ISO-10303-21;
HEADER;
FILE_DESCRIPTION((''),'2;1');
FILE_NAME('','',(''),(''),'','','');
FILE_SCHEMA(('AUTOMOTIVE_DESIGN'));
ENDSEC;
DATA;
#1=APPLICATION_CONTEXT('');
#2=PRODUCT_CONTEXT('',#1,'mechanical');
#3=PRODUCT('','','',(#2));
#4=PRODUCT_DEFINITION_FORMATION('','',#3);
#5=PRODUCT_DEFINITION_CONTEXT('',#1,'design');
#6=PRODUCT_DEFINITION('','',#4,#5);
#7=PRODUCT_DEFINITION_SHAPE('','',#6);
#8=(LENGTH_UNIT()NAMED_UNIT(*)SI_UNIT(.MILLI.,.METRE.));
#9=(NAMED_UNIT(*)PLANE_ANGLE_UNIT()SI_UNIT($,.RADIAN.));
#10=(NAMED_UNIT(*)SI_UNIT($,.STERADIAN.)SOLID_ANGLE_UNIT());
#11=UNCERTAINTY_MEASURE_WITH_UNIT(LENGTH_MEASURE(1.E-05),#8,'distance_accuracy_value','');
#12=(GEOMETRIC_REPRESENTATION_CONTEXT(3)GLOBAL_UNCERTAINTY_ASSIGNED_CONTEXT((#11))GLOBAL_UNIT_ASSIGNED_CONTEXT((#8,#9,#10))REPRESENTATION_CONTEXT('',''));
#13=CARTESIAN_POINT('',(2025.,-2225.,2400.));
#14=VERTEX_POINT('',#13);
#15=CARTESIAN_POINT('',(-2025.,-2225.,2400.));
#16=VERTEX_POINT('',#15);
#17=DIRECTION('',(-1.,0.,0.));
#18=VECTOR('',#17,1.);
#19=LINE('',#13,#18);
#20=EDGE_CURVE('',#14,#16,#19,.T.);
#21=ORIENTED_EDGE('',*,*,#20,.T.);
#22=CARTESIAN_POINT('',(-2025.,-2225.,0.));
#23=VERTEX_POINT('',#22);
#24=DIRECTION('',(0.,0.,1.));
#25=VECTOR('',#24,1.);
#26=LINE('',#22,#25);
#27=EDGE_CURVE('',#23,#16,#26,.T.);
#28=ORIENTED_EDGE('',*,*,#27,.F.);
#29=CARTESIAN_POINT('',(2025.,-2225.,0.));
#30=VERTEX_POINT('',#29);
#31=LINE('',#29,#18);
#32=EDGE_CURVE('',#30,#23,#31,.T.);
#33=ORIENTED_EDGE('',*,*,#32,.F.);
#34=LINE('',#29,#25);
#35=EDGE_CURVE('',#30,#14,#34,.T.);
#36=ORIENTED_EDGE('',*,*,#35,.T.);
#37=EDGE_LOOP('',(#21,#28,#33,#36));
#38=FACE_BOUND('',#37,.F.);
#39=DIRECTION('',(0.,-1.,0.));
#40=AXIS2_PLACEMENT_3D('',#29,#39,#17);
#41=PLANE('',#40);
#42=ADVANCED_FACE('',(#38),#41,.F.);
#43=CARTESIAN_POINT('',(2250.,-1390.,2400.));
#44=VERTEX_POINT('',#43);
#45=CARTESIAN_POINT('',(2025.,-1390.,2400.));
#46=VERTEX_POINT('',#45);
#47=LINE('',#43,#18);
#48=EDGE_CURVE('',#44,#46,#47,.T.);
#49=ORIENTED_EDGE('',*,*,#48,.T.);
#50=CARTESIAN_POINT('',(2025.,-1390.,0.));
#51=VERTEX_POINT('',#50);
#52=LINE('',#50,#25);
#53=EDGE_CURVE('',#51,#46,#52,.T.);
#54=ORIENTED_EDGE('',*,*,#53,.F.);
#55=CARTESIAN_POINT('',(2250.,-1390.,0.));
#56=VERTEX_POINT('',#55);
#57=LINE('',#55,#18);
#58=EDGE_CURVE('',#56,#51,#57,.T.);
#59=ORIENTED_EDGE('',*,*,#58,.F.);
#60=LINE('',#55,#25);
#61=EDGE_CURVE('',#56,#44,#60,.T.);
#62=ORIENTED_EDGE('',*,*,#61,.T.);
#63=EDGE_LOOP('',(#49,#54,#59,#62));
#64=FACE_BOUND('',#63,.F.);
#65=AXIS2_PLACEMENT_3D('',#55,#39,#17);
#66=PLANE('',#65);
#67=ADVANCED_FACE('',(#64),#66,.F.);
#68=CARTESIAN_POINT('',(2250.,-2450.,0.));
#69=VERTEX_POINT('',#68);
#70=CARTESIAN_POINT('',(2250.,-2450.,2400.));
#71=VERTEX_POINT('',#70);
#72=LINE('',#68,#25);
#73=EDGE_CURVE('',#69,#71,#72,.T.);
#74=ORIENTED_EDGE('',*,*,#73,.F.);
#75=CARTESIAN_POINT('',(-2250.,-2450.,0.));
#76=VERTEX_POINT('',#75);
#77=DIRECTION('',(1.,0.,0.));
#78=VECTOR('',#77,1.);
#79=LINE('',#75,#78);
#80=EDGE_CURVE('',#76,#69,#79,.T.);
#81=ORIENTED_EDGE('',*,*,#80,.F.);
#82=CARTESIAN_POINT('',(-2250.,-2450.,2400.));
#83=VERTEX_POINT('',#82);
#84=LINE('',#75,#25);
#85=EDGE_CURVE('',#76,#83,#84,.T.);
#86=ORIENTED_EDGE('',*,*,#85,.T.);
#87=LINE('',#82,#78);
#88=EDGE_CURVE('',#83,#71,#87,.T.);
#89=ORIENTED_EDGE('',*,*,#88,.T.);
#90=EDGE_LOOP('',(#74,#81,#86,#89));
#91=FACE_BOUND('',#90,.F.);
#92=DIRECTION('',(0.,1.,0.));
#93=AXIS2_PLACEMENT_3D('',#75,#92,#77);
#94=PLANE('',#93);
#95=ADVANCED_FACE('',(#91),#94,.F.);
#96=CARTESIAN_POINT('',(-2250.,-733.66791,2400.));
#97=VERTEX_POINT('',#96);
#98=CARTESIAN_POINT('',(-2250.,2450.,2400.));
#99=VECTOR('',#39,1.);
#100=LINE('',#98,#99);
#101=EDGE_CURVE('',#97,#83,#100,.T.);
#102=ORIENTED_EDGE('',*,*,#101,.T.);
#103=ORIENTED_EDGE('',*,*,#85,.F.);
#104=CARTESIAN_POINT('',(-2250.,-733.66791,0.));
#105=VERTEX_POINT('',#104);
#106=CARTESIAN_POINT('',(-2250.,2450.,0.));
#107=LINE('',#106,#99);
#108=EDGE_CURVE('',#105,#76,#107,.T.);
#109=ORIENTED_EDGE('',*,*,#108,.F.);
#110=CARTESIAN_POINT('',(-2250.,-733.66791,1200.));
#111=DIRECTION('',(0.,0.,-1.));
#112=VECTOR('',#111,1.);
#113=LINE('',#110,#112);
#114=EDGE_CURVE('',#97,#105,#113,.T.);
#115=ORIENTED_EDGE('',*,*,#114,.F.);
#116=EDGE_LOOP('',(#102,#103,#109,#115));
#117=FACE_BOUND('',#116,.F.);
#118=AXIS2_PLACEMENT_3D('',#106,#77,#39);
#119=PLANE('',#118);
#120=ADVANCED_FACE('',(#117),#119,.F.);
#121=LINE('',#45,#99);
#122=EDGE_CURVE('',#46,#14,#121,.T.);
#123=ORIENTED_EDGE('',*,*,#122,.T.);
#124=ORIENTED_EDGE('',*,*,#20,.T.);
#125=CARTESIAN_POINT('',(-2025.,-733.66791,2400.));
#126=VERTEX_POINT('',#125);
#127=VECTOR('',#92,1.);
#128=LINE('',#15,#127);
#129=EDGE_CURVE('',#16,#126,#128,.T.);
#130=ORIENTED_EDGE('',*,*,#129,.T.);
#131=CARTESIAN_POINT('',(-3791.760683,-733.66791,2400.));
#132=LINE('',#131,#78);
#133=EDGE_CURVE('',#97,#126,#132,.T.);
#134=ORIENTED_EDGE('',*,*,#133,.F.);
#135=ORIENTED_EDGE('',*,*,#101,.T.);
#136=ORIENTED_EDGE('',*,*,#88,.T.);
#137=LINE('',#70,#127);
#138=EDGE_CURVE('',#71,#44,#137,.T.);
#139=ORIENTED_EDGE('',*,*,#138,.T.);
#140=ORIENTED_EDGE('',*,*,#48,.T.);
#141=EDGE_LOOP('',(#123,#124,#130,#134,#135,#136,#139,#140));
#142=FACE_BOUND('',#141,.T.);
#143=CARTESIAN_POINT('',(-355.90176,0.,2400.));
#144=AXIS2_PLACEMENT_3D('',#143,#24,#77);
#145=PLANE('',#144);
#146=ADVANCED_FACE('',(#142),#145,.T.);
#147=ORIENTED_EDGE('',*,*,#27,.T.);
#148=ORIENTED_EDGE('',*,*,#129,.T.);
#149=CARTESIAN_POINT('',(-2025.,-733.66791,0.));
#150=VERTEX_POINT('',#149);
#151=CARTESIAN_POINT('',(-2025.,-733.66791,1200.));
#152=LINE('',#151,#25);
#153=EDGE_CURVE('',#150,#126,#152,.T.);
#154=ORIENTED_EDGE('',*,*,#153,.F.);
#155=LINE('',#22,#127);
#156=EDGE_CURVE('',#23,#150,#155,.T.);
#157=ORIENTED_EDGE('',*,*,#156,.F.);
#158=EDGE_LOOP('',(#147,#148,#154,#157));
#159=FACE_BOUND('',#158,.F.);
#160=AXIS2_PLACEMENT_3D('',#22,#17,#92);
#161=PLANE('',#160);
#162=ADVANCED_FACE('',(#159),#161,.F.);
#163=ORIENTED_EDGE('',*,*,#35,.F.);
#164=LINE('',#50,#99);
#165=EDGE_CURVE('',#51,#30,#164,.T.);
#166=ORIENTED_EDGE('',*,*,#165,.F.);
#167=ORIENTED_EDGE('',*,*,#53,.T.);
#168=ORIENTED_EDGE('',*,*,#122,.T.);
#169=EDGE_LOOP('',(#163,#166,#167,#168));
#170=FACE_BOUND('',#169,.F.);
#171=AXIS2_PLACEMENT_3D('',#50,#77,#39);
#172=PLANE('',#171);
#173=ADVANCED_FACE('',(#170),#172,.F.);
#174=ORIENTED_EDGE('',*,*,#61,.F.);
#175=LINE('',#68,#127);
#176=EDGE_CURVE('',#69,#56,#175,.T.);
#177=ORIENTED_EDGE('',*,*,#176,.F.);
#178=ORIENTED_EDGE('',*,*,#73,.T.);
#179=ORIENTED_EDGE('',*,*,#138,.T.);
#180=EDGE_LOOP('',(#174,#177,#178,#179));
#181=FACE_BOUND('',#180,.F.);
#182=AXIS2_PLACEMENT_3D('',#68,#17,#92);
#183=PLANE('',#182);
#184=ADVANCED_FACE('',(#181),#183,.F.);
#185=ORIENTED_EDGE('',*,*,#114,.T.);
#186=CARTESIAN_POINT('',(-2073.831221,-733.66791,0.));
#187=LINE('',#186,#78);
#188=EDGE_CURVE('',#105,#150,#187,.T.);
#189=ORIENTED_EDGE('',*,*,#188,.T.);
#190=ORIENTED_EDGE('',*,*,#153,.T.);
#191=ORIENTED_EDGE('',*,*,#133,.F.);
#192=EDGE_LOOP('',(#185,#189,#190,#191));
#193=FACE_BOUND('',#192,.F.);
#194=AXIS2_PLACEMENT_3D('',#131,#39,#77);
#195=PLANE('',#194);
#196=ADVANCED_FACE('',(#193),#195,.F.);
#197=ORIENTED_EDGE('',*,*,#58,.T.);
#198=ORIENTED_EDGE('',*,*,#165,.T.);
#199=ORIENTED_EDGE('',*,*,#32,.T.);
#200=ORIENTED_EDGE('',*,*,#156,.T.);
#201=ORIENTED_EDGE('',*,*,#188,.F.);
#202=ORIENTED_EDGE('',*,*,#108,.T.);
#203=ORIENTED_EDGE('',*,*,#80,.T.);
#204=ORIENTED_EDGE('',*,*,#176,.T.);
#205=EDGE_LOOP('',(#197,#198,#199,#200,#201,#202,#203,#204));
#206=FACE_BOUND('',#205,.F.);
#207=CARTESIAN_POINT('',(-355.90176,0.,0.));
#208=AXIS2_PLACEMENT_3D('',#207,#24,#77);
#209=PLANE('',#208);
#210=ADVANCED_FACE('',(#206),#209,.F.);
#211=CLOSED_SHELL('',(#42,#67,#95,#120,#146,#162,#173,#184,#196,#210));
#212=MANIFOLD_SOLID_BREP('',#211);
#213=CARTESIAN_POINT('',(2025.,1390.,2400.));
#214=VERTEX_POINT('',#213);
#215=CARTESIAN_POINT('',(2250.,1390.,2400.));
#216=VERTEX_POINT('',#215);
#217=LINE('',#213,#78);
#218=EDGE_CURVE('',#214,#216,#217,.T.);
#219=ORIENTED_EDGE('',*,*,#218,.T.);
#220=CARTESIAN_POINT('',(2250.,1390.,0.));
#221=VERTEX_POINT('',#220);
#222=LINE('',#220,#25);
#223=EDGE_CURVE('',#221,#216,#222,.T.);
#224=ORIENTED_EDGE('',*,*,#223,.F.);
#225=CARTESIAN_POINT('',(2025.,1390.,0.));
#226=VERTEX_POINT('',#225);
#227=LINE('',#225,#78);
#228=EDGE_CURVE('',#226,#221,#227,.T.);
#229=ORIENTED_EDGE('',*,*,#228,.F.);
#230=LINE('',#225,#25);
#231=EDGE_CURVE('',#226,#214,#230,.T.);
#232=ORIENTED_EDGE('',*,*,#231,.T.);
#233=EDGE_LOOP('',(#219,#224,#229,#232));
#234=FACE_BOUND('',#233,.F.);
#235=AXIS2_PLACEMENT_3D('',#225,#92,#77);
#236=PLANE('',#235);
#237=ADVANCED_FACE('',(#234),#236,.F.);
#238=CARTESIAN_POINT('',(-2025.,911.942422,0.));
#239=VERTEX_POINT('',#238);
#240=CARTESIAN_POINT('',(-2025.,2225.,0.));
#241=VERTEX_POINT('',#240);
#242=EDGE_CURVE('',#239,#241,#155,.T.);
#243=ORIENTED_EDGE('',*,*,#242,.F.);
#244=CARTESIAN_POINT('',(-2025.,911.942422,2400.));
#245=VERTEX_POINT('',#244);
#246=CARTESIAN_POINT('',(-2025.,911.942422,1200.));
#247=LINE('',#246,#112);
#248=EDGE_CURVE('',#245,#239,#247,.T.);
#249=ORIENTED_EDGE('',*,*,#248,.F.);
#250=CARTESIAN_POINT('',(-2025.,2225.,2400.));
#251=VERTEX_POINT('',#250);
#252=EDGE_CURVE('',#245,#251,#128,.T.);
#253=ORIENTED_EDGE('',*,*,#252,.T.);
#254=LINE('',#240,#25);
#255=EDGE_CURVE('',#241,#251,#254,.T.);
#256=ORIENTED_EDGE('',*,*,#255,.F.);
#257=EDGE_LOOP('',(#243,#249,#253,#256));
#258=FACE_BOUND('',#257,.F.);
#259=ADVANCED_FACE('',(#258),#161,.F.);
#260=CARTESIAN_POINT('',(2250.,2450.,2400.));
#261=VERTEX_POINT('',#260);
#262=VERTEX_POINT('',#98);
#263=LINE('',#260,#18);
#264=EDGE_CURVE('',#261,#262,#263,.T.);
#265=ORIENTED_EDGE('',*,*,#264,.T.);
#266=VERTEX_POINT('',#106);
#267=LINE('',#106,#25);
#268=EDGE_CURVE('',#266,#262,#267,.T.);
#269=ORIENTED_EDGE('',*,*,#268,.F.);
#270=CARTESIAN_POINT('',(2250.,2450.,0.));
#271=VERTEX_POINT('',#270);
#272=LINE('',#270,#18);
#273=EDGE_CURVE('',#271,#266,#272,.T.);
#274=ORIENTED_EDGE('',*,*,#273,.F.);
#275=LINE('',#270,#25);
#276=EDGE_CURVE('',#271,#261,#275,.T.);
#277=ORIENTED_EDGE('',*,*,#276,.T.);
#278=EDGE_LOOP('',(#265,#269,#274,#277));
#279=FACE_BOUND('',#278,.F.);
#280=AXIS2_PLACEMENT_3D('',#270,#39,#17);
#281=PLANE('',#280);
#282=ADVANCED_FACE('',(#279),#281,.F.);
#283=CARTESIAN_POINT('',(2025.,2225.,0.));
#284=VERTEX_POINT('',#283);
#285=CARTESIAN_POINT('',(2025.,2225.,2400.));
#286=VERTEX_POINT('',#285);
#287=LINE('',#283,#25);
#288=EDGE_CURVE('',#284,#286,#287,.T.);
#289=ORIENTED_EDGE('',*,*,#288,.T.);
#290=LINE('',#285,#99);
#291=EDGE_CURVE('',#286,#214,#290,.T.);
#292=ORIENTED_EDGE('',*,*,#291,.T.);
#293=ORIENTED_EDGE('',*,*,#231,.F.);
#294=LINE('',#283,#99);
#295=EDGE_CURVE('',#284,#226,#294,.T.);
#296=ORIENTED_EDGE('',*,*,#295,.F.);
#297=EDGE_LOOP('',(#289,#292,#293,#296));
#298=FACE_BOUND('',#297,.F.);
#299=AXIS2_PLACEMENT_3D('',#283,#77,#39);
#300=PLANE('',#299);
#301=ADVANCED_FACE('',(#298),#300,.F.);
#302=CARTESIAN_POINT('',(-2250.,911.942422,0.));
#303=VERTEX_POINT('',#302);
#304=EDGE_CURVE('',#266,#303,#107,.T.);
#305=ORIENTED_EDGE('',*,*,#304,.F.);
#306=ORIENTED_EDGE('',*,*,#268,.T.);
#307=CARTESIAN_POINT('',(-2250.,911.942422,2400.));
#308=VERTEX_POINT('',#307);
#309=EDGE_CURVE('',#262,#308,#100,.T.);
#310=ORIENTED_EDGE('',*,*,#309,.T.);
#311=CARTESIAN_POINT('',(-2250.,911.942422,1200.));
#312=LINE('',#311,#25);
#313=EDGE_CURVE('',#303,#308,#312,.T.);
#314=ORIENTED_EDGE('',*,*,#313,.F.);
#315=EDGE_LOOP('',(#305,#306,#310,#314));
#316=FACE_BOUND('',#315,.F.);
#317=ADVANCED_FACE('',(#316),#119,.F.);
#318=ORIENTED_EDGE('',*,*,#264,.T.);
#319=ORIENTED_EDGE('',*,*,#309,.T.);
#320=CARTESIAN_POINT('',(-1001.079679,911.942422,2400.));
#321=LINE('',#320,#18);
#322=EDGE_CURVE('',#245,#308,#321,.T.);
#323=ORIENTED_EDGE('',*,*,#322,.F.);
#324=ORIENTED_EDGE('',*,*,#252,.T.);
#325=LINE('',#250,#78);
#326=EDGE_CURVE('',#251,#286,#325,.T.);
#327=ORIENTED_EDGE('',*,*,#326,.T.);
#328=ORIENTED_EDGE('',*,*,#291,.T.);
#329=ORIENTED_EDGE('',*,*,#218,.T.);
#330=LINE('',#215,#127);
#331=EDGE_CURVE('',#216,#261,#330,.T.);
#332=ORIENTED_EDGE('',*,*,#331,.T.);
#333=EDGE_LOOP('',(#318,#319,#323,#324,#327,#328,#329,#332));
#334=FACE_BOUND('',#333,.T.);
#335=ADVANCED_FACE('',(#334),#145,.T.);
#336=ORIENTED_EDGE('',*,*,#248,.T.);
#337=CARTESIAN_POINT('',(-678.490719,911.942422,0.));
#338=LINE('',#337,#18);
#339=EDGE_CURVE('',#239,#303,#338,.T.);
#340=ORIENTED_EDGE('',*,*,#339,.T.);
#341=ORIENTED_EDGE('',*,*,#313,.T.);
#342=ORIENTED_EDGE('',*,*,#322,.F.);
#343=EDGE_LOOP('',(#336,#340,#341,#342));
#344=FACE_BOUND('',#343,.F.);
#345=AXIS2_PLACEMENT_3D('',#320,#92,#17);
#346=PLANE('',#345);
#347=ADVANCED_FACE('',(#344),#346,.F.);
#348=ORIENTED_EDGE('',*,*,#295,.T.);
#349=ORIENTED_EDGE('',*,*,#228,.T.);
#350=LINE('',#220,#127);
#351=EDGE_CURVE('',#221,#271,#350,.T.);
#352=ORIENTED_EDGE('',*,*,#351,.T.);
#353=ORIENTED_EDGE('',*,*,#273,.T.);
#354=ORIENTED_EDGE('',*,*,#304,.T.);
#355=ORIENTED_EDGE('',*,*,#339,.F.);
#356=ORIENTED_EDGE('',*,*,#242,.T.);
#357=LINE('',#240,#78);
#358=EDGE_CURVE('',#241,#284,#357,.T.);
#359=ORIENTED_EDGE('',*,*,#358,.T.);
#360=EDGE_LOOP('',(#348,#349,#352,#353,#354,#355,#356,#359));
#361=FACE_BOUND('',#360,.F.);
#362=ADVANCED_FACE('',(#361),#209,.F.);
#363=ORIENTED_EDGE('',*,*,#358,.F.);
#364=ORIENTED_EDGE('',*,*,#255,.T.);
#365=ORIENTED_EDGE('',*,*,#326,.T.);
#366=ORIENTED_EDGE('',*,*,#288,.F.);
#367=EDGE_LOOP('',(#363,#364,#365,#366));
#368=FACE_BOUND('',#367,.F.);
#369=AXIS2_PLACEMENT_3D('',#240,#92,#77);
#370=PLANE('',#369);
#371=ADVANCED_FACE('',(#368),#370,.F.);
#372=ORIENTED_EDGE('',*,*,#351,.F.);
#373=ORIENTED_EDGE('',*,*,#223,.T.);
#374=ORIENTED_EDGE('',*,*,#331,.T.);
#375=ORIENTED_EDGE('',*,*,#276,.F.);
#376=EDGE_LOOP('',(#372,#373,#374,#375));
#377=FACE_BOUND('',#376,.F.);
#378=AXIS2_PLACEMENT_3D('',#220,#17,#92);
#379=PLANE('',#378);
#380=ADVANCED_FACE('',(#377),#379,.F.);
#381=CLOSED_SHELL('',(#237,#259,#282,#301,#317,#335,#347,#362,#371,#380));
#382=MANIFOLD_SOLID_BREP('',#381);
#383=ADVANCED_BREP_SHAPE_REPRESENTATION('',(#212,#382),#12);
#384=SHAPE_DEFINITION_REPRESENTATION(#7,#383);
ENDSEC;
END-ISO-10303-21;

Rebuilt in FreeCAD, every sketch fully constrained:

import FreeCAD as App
import Part
import Sketcher

V = App.Vector


def add_polygon(sketch, points):
    """Adds a closed chain of lines whose ends are joined by coincident constraints."""
    first, n = sketch.GeometryCount, len(points)
    for a, b in zip(points, points[1:] + points[:1]):
        sketch.addGeometry(Part.LineSegment(App.Vector(*a, 0), App.Vector(*b, 0)), False)
    for i in range(n):
        sketch.addConstraint(Sketcher.Constraint("Coincident", first + i, 2, first + (i + 1) % n, 1))

doc = App.newDocument("Part")
body = doc.addObject("PartDesign::Body", "Body")
body.AllowCompound = True

# Sketch on XY plane
sketch1 = doc.addObject("Sketcher::SketchObject", "Sketch")
body.addObject(sketch1)
sketch1.AttachmentSupport = (doc.XY_Plane, [""])
sketch1.MapMode = "FlatFace"
add_polygon(sketch1, [(-2250, -2450), (2250, -2450), (2250, -1390), (2025, -1390), (2025, -2225), (-2025, -2225), (-2025, 2225), (2025, 2225), (2025, 1390), (2250, 1390), (2250, 2450), (-2250, 2450)])  # lines 0-11
sketch1.addConstraint(Sketcher.Constraint("Horizontal", 0))
sketch1.addConstraint(Sketcher.Constraint("Vertical", 1))
sketch1.addConstraint(Sketcher.Constraint("Horizontal", 2))
sketch1.addConstraint(Sketcher.Constraint("Vertical", 3))
sketch1.addConstraint(Sketcher.Constraint("Horizontal", 4))
sketch1.addConstraint(Sketcher.Constraint("Vertical", 5))
sketch1.addConstraint(Sketcher.Constraint("Horizontal", 6))
sketch1.addConstraint(Sketcher.Constraint("Vertical", 7))
sketch1.addConstraint(Sketcher.Constraint("Horizontal", 8))
sketch1.addConstraint(Sketcher.Constraint("Vertical", 9))
sketch1.addConstraint(Sketcher.Constraint("Horizontal", 10))
sketch1.addConstraint(Sketcher.Constraint("Vertical", 11))
sketch1.addConstraint(Sketcher.Constraint("Symmetric", 3, 2, 5, 2, -1, 1))
sketch1.addConstraint(Sketcher.Constraint("Symmetric", 0, 2, 10, 2, -1, 1))
sketch1.addConstraint(Sketcher.Constraint("Symmetric", 2, 2, 7, 2, -1))
sketch1.addConstraint(Sketcher.Constraint("Vertical", 1, 2, 8, 2))
sketch1.addConstraint(Sketcher.Constraint("DistanceX", 0, 1, 0, 2, 4500.0))
sketch1.addConstraint(Sketcher.Constraint("DistanceX", 2, 2, 2, 1, 225.0))
sketch1.addConstraint(Sketcher.Constraint("DistanceY", 1, 1, 1, 2, 1060.0))
sketch1.addConstraint(Sketcher.Constraint("DistanceY", 3, 2, 3, 1, 835.0))
sketch1.addConstraint(Sketcher.Constraint("DistanceY", 5, 1, 5, 2, 4450.0))
pad1 = doc.addObject("PartDesign::Pad", "Pad")
body.addObject(pad1)
pad1.Profile = sketch1
pad1.Length = 2400

# Sketch on XY plane
sketch2 = doc.addObject("Sketcher::SketchObject", "Sketch001")
body.addObject(sketch2)
sketch2.AttachmentSupport = (doc.XY_Plane, [""])
sketch2.MapMode = "FlatFace"
sketch2.AttachmentOffset = App.Placement(V(0, 0, 2400), App.Rotation())
add_polygon(sketch2, [(-1001.079679, -733.66791), (-1001.079679, 911.942422), (-3791.760683, 911.942422), (-3791.760683, -733.66791)])  # lines 0-3
sketch2.addConstraint(Sketcher.Constraint("Vertical", 0))
sketch2.addConstraint(Sketcher.Constraint("Horizontal", 1))
sketch2.addConstraint(Sketcher.Constraint("Vertical", 2))
sketch2.addConstraint(Sketcher.Constraint("Horizontal", 3))
sketch2.addConstraint(Sketcher.Constraint("DistanceX", 1, 2, 1, 1, 2790.681005))
sketch2.addConstraint(Sketcher.Constraint("DistanceY", 0, 1, 0, 2, 1645.610332))
sketch2.addConstraint(Sketcher.Constraint("DistanceX", 0, 2, -1, 1, 1001.079679))
sketch2.addConstraint(Sketcher.Constraint("DistanceY", 2, 2, -1, 1, 733.66791))
pocket1 = doc.addObject("PartDesign::Pocket", "Pocket")
body.addObject(pocket1)
pocket1.Profile = sketch2
pocket1.Type = "ThroughAll"

doc.recompute()
